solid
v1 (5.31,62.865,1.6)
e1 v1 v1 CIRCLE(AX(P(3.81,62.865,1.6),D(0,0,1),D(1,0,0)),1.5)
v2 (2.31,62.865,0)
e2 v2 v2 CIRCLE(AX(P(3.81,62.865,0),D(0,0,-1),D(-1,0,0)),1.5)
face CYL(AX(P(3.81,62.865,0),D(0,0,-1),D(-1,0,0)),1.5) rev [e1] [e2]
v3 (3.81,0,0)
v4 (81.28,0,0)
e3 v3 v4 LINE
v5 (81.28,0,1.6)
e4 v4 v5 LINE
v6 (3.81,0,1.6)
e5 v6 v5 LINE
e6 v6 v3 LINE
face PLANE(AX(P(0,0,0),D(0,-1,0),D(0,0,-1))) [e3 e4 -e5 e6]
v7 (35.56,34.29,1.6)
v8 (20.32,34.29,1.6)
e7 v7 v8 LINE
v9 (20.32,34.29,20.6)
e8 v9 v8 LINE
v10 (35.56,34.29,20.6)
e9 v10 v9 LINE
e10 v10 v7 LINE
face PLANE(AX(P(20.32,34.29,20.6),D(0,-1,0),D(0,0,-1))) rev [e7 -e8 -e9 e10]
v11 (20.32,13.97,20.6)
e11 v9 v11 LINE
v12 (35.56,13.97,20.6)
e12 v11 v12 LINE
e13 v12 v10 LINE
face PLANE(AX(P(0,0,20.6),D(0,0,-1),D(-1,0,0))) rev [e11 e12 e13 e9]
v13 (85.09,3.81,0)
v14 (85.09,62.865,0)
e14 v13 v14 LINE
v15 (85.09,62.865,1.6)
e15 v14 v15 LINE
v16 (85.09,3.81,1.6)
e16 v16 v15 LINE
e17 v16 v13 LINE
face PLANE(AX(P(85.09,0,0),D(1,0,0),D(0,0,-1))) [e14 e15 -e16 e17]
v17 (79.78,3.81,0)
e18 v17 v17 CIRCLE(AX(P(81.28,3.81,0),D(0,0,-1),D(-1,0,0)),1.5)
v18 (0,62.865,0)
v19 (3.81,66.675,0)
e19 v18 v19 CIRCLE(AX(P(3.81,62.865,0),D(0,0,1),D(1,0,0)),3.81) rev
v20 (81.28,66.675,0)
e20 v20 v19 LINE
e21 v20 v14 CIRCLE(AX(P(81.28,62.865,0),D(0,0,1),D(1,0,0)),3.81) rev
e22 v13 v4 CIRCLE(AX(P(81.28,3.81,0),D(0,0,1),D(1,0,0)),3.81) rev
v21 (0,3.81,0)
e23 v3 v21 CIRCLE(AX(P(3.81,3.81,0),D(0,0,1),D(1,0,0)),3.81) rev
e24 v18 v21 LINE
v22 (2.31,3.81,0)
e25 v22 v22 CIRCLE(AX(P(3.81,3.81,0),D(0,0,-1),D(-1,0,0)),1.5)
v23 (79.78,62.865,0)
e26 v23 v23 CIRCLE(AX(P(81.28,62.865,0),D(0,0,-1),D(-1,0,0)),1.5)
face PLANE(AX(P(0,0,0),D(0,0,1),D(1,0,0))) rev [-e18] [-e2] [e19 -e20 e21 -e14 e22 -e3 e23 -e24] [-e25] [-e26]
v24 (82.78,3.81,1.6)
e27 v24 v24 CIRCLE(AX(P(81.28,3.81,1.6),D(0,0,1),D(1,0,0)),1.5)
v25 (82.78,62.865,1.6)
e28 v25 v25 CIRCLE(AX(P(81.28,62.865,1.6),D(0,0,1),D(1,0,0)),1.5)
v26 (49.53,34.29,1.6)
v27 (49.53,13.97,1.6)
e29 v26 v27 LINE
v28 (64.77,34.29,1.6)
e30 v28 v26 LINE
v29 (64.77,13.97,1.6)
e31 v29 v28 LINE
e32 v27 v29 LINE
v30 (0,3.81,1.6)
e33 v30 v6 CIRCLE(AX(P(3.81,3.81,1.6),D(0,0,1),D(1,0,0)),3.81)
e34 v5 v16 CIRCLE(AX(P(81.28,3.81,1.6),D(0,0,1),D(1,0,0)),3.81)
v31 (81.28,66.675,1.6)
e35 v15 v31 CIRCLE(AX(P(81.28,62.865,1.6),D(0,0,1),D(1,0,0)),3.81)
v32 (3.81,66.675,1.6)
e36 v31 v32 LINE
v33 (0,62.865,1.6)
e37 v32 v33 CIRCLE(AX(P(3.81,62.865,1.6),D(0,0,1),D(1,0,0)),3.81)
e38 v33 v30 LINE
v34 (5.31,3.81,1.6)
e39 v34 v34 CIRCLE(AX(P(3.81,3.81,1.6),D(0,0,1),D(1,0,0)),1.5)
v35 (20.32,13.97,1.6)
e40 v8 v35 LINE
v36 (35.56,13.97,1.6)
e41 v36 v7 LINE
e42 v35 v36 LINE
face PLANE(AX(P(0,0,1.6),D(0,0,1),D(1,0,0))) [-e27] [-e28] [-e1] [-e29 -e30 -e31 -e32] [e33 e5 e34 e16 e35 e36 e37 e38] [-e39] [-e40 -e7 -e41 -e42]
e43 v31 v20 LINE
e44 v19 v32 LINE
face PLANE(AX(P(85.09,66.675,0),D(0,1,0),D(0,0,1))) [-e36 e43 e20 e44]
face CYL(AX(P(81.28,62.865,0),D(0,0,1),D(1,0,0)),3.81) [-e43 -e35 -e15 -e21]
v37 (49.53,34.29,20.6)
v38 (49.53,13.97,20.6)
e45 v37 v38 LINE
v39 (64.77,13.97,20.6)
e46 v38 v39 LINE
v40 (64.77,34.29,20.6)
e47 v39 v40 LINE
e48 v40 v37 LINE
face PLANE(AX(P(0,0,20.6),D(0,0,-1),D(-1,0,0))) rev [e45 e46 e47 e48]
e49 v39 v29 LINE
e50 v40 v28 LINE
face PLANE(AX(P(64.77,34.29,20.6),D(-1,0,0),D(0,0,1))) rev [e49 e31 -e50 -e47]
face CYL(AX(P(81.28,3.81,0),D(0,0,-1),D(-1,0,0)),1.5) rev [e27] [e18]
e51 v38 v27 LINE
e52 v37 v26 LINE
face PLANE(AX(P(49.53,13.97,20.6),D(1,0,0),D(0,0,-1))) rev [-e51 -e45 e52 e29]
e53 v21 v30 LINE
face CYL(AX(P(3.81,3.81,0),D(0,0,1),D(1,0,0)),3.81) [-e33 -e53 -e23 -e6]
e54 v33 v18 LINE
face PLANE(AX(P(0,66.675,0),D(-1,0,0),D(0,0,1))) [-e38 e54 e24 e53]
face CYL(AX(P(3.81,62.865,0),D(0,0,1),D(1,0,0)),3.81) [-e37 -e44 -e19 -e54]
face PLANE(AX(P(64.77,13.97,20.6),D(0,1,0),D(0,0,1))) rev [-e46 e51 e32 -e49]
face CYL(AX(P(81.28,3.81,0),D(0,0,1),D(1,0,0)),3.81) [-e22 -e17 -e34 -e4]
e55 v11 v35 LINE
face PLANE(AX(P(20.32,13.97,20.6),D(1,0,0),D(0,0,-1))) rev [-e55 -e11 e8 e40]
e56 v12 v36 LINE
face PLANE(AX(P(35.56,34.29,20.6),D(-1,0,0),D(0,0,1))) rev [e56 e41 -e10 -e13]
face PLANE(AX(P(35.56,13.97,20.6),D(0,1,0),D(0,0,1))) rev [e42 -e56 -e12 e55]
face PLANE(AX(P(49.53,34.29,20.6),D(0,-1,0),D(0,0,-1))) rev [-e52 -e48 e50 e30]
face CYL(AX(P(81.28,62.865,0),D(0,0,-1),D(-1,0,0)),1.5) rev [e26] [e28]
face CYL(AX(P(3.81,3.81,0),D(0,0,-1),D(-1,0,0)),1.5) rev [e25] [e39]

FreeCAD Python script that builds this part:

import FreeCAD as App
import Part
import Sketcher

V = App.Vector
Q = App.Units.Quantity


def edges_at(feature, points):
    """Names of the edges that pass closest to the given points."""
    edges = feature.Shape.Edges
    near = lambda p: min(range(len(edges)), key=lambda i: edges[i].distToShape(Part.Vertex(*p))[0])
    return sorted({f"Edge{near(p) + 1}" for p in points})


def add_polygon(sketch, points):
    """Adds a closed chain of lines whose ends are joined by coincident constraints."""
    first, n = sketch.GeometryCount, len(points)
    for a, b in zip(points, points[1:] + points[:1]):
        sketch.addGeometry(Part.LineSegment(App.Vector(*a, 0), App.Vector(*b, 0)), False)
    for i in range(n):
        sketch.addConstraint(Sketcher.Constraint("Coincident", first + i, 2, first + (i + 1) % n, 1))

doc = App.newDocument("Part")
body = doc.addObject("PartDesign::Body", "Body")

# Sketch on XY plane
sketch1 = body.newObject("Sketcher::SketchObject", "Sketch")
sketch1.AttachmentSupport = (doc.getObject("XY_Plane"), [""])
sketch1.MapMode = "FlatFace"
sketch1.AttachmentOffset = App.Placement(V(0, 0, 1.6), App.Rotation())
add_polygon(sketch1, [(0, 67), (0, 0), (85, 0), (85, 67)])  # lines 0-3
sketch1.addConstraint([
    Sketcher.Constraint("Vertical", 0),
    Sketcher.Constraint("Horizontal", 1),
    Sketcher.Constraint("Vertical", 2),
    Sketcher.Constraint("Horizontal", 3),
    Sketcher.Constraint("Coincident", 0, 2, -1, 1),
    Sketcher.Constraint("DistanceX", 1, 1, 1, 2, Q("3.35 in")),
    Sketcher.Constraint("DistanceY", 0, 2, 0, 1, Q("2.625 in")),
])
pad1 = body.newObject("PartDesign::Pad", "Pad")
pad1.Profile = sketch1
pad1.Length = 1.6
pad1.Reversed = True

# Sketch on XY plane
sketch2 = body.newObject("Sketcher::SketchObject", "Sketch001")
sketch2.AttachmentSupport = (doc.getObject("XY_Plane"), [""])
sketch2.MapMode = "FlatFace"
sketch2.AttachmentOffset = App.Placement(V(0, 0, 1.6), App.Rotation())
add_polygon(sketch2, [(50, 34), (50, 14), (65, 14), (65, 34)])  # lines 0-3
sketch2.addConstraint([
    Sketcher.Constraint("Vertical", 0),
    Sketcher.Constraint("Horizontal", 1),
    Sketcher.Constraint("Vertical", 2),
    Sketcher.Constraint("Horizontal", 3),
    Sketcher.Constraint("DistanceX", 1, 1, 1, 2, Q("0.6 in")),
    Sketcher.Constraint("DistanceY", 0, 2, 0, 1, Q("0.8 in")),
    Sketcher.Constraint("DistanceX", -1, 1, 0, 2, Q("1.95 in")),
    Sketcher.Constraint("DistanceY", -1, 1, 0, 2, Q("0.55 in")),
])
pad2 = body.newObject("PartDesign::Pad", "Pad001")
pad2.Profile = sketch2
pad2.Length = 19

# Sketch on XY plane
sketch3 = body.newObject("Sketcher::SketchObject", "Sketch002")
sketch3.AttachmentSupport = (doc.getObject("XY_Plane"), [""])
sketch3.MapMode = "FlatFace"
sketch3.AttachmentOffset = App.Placement(V(0, 0, 1.6), App.Rotation())
add_polygon(sketch3, [(20, 34), (20, 14), (36, 14), (36, 34)])  # lines 0-3
sketch3.addConstraint([
    Sketcher.Constraint("Vertical", 0),
    Sketcher.Constraint("Horizontal", 1),
    Sketcher.Constraint("Vertical", 2),
    Sketcher.Constraint("Horizontal", 3),
    Sketcher.Constraint("DistanceX", 1, 1, 1, 2, Q("0.6 in")),
    Sketcher.Constraint("DistanceY", 0, 2, 0, 1, Q("0.8 in")),
    Sketcher.Constraint("DistanceX", -1, 1, 0, 2, Q("0.8 in")),
    Sketcher.Constraint("DistanceY", -1, 1, 0, 2, Q("0.55 in")),
])
pad3 = body.newObject("PartDesign::Pad", "Pad002")
pad3.Profile = sketch3
pad3.Length = 19

# Sketch on XY plane
sketch4 = body.newObject("Sketcher::SketchObject", "Sketch003")
sketch4.AttachmentSupport = (doc.getObject("XY_Plane"), [""])
sketch4.MapMode = "FlatFace"
sketch4.addGeometry([
    Part.Circle(V(3.8, 62.9, 0), V(0, 0, 1), 1.5),
    Part.Circle(V(3.8, 3.8, 0), V(0, 0, 1), 1.5),
    Part.Circle(V(81.3, 3.8, 0), V(0, 0, 1), 1.5),
    Part.Circle(V(81.3, 62.9, 0), V(0, 0, 1), 1.5),
], False)
sketch4.addConstraint([
    Sketcher.Constraint("Equal", 0, 1),
    Sketcher.Constraint("Equal", 1, 2),
    Sketcher.Constraint("Equal", 2, 3),
    Sketcher.Constraint("Horizontal", 1, 3, 2, 3),
    Sketcher.Constraint("Horizontal", 0, 3, 3, 3),
    Sketcher.Constraint("Vertical", 0, 3, 1, 3),
    Sketcher.Constraint("Vertical", 2, 3, 3, 3),
    Sketcher.Constraint("DistanceX", -1, 1, 2, 3, Q("3.2 in")),
    Sketcher.Constraint("Diameter", 0, Q("3 mm")),
    Sketcher.Constraint("DistanceX", -1, 1, 0, 3, Q("0.15 in")),
    Sketcher.Constraint("DistanceY", -1, 1, 1, 3, Q("0.15 in")),
    Sketcher.Constraint("DistanceY", -1, 1, 0, 3, Q("2.475 in")),
])
doc.recompute()
hole = body.newObject("PartDesign::Hole", "Hole")
hole.Profile = sketch4
hole.ThreadType = "None"
hole.Diameter = 3
hole.DepthType = "Dimension"
hole.Depth = 20.6
hole.DrillPoint = "Flat"
hole.Reversed = True
doc.recompute()

fillet = body.newObject("PartDesign::Fillet", "Fillet")
fillet.Base = (hole, edges_at(hole, [
    (0, 0, 0.8),
    (0, 66.675, 0.8),
    (85.09, 66.675, 0.8),
    (85.09, 0, 0.8),
]))
fillet.Radius = Q("0.15 in")

doc.recompute()
